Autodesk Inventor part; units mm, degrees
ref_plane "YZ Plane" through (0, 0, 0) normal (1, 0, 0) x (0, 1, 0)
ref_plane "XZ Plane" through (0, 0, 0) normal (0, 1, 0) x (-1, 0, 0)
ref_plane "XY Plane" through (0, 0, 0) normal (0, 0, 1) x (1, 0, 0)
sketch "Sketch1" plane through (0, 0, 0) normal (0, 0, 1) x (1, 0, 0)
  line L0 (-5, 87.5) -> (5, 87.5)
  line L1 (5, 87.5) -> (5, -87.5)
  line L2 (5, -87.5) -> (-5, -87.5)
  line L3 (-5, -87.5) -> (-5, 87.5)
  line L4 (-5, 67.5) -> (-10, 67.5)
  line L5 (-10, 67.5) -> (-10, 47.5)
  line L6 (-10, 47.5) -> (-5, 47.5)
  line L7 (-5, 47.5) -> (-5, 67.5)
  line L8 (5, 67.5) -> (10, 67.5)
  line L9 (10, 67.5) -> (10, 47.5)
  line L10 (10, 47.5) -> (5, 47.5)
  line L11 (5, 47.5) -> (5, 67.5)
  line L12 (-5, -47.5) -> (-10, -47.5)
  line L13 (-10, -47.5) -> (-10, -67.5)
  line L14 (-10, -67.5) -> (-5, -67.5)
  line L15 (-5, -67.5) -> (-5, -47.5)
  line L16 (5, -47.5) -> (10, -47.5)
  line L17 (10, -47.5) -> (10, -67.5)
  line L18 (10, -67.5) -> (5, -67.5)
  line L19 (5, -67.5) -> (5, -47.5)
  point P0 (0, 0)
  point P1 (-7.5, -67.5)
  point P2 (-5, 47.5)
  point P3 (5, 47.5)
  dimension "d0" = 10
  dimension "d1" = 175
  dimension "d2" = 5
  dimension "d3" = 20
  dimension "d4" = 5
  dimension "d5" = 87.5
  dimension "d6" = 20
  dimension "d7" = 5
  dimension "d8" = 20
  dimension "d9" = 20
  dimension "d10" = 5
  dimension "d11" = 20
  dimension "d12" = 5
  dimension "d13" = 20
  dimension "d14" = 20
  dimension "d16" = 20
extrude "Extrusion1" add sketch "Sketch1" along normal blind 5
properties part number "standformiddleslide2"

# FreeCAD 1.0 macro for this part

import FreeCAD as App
import Part
import Sketcher
from FreeCAD import Vector


def add_polygon(sketch, points):
    """Adds a closed chain of lines whose ends are joined by coincident constraints."""
    first, n = sketch.GeometryCount, len(points)
    for a, b in zip(points, points[1:] + points[:1]):
        sketch.addGeometry(Part.LineSegment(App.Vector(*a, 0), App.Vector(*b, 0)), False)
    for i in range(n):
        sketch.addConstraint(Sketcher.Constraint("Coincident", first + i, 2, first + (i + 1) % n, 1))

doc = App.newDocument("Part")
body = doc.addObject("PartDesign::Body", "Body")

sketch1 = body.newObject("Sketcher::SketchObject", "Sketch")
sketch1.AttachmentSupport = (doc.getObject("XY_Plane"), [""])
sketch1.MapMode = "FlatFace"
add_polygon(sketch1, [(5, 88), (-5, 88), (-5, 68), (-10, 68), (-10, 48), (-5, 48), (-5, -48), (-10, -48), (-10, -68), (-5, -68), (-5, -88), (5, -88), (5, -68), (10, -68), (10, -48), (5, -48), (5, 48), (10, 48), (10, 68), (5, 68)])
sketch1.addConstraint([
    Sketcher.Constraint("Horizontal", 0),
    Sketcher.Constraint("Vertical", 1),
    Sketcher.Constraint("Horizontal", 2),
    Sketcher.Constraint("Vertical", 3),
    Sketcher.Constraint("Horizontal", 4),
    Sketcher.Constraint("Vertical", 5),
    Sketcher.Constraint("Horizontal", 6),
    Sketcher.Constraint("Vertical", 7),
    Sketcher.Constraint("Horizontal", 8),
    Sketcher.Constraint("Vertical", 9),
    Sketcher.Constraint("Horizontal", 10),
    Sketcher.Constraint("Vertical", 11),
    Sketcher.Constraint("Horizontal", 12),
    Sketcher.Constraint("Vertical", 13),
    Sketcher.Constraint("Horizontal", 14),
    Sketcher.Constraint("Vertical", 15),
    Sketcher.Constraint("Horizontal", 16),
    Sketcher.Constraint("Vertical", 17),
    Sketcher.Constraint("Horizontal", 18),
    Sketcher.Constraint("Vertical", 19),
    Sketcher.Constraint("Symmetric", 0, 2, 10, 2, -1, 1),
    Sketcher.Constraint("Symmetric", 2, 2, 12, 2, -1, 1),
    Sketcher.Constraint("Symmetric", 4, 2, 14, 2, -1, 1),
    Sketcher.Constraint("Symmetric", 6, 2, 16, 2, -1, 1),
    Sketcher.Constraint("Symmetric", 8, 2, 18, 2, -1, 1),
    Sketcher.Constraint("Symmetric", 8, 2, 11, 2, -2),
    Sketcher.Constraint("Symmetric", 6, 2, 13, 2, -2),
    Sketcher.Constraint("Vertical", 1, 2, 4, 2),
    Sketcher.Constraint("Equal", 1, 3),
    Sketcher.Constraint("DistanceX", 0, 2, 0, 1, 10.0),
    Sketcher.Constraint("DistanceX", 2, 2, 2, 1, 5.0),
    Sketcher.Constraint("DistanceY", 1, 2, 1, 1, 20.0),
    Sketcher.Constraint("DistanceY", -1, 1, 0, 2, 87.5),
])
pad1 = body.newObject("PartDesign::Pad", "Pad")
pad1.Profile = sketch1
pad1.Length = 5

doc.recompute()
